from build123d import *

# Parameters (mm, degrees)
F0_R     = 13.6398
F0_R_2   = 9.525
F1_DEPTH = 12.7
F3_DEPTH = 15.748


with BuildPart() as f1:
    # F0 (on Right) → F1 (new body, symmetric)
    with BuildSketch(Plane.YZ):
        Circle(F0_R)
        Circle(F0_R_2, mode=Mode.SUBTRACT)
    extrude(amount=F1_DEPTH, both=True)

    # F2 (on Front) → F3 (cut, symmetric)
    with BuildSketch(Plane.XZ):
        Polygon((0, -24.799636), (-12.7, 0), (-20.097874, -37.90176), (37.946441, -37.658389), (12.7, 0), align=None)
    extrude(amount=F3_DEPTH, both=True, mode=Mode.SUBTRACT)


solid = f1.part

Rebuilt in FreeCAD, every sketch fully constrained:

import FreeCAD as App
import Part
import Sketcher
from FreeCAD import Vector
Q = App.Units.Quantity

doc = App.newDocument("Part")
body = doc.addObject("PartDesign::Body", "Body")

# Sketch on YZ plane
sketch1 = body.newObject("Sketcher::SketchObject", "Sketch")
sketch1.AttachmentSupport = (doc.getObject("YZ_Plane"), [""])
sketch1.MapMode = "FlatFace"
sketch1.addGeometry([
    Part.Circle(Vector(0, 0, 0), Vector(0, 0, 1), 13.6398),
    Part.Circle(Vector(0, 0, 0), Vector(0, 0, 1), 9.525),
], False)
sketch1.addConstraint([
    Sketcher.Constraint("Coincident", 0, 3, -1, 1),
    Sketcher.Constraint("Coincident", 1, 3, -1, 1),
    Sketcher.Constraint("Diameter", 1, Q("0.75 in")),
    Sketcher.Constraint("Diameter", 0, Q("1.074 in")),
])
pad1 = body.newObject("PartDesign::Pad", "Pad")
pad1.Profile = sketch1
pad1.Length = Q("1 in")
pad1.Midplane = True

# Sketch on XZ plane
sketch2 = body.newObject("Sketcher::SketchObject", "Sketch001")
sketch2.AttachmentSupport = (doc.getObject("XZ_Plane"), [""])
sketch2.MapMode = "FlatFace"
sketch2.addGeometry([
    Part.LineSegment(Vector(0, -24.799636, 0), Vector(-12.7, 0, 0)),  # 0
    Part.LineSegment(Vector(-12.7, 0, 0), Vector(-20.097874, -37.90176, 0)),  # 1
    Part.LineSegment(Vector(-20.097874, -37.90176, 0), Vector(37.946441, -37.658389, 0)),  # 2
    Part.LineSegment(Vector(37.946441, -37.658389, 0), Vector(12.7, 0, 0)),  # 3
    Part.LineSegment(Vector(12.7, 0, 0), Vector(0, -24.799636, 0)),  # 4
], False)
sketch2.addConstraint([
    Sketcher.Constraint("Coincident", 0, 2, 1, 1),
    Sketcher.Constraint("Coincident", 1, 2, 2, 1),
    Sketcher.Constraint("Coincident", 2, 2, 3, 1),
    Sketcher.Constraint("Coincident", 3, 2, 4, 1),
    Sketcher.Constraint("Coincident", 4, 2, 0, 1),
    Sketcher.Constraint("Symmetric", 0, 2, 3, 2, -1, 1),
    Sketcher.Constraint("PointOnObject", 0, 2, -1),
    Sketcher.Constraint("PointOnObject", 4, 2, -2),
    Sketcher.Constraint("DistanceX", 0, 2, 3, 2, Q("1 in")),
    Sketcher.Constraint("Distance", 1, Q("38.61699 mm")),
    Sketcher.Constraint("Distance", 3, Q("45.338031 mm")),
    Sketcher.Constraint("DistanceY", 1, 2, -1, 1, Q("37.90176 mm")),
    Sketcher.Constraint("DistanceX", -1, 1, 2, 2, Q("37.946441 mm")),
    Sketcher.Constraint("Distance", 0, Q("27.862375 mm")),
])
pocket1 = body.newObject("PartDesign::Pocket", "Pocket")
pocket1.Profile = sketch2
pocket1.Length = Q("1.24 in")
pocket1.Midplane = True

doc.recompute()
